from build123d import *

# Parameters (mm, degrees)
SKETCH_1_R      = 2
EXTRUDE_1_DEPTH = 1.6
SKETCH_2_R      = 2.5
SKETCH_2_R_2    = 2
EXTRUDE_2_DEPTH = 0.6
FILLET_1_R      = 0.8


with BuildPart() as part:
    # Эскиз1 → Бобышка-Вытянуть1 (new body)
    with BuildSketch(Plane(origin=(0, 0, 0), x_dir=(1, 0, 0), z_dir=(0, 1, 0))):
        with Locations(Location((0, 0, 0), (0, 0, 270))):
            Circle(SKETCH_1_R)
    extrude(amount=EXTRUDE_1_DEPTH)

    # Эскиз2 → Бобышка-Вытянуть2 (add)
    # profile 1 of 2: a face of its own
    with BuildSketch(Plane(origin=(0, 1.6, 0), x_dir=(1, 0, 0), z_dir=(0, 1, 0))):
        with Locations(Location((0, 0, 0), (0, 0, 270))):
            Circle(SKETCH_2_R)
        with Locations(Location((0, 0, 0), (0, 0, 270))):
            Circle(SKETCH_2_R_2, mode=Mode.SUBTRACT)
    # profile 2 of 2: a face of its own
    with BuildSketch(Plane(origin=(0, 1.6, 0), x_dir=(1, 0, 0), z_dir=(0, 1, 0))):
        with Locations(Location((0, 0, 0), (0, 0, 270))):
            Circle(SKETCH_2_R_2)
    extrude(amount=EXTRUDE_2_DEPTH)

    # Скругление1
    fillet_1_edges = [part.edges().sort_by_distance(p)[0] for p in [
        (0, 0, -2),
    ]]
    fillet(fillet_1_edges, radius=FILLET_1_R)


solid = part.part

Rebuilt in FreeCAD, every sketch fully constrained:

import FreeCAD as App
import Part
import Sketcher
Q = App.Units.Quantity


def edges_at(feature, points):
    """Names of the edges that pass closest to the given points."""
    edges = feature.Shape.Edges
    near = lambda p: min(range(len(edges)), key=lambda i: edges[i].distToShape(Part.Vertex(*p))[0])
    return sorted({f"Edge{near(p) + 1}" for p in points})

doc = App.newDocument("Part")
body = doc.addObject("PartDesign::Body", "Body")

# Sketch on XZ plane
sketch1 = body.newObject("Sketcher::SketchObject", "Sketch")
sketch1.AttachmentSupport = (doc.getObject("XZ_Plane"), [""])
sketch1.MapMode = "FlatFace"
sketch1.addGeometry(Part.Circle(App.Vector(0, 0, 0), App.Vector(0, 0, 1), 2), False)
sketch1.addConstraint([
    Sketcher.Constraint("Coincident", 0, 3, -1, 1),
    Sketcher.Constraint("Diameter", 0, Q("4 mm")),
])
pad1 = body.newObject("PartDesign::Pad", "Pad")
pad1.Profile = sketch1
pad1.Length = 1.6
pad1.Reversed = True

# Sketch on XZ plane
sketch2 = body.newObject("Sketcher::SketchObject", "Sketch001")
sketch2.AttachmentSupport = (doc.getObject("XZ_Plane"), [""])
sketch2.MapMode = "FlatFace"
sketch2.AttachmentOffset = App.Placement(App.Vector(0, 0, -1.6), App.Rotation())
sketch2.addGeometry(Part.Circle(App.Vector(0, 0, 0), App.Vector(0, 0, 1), 2.5), False)
sketch2.addConstraint([
    Sketcher.Constraint("Coincident", 0, 3, -1, 1),
    Sketcher.Constraint("Diameter", 0, Q("5 mm")),
])
pad2 = body.newObject("PartDesign::Pad", "Pad001")
pad2.Profile = sketch2
pad2.Length = 0.6
pad2.Reversed = True
doc.recompute()

fillet = body.newObject("PartDesign::Fillet", "Fillet")
fillet.Base = (pad2, edges_at(pad2, [(0, 0, -2)]))
fillet.Radius = 0.8

doc.recompute()
